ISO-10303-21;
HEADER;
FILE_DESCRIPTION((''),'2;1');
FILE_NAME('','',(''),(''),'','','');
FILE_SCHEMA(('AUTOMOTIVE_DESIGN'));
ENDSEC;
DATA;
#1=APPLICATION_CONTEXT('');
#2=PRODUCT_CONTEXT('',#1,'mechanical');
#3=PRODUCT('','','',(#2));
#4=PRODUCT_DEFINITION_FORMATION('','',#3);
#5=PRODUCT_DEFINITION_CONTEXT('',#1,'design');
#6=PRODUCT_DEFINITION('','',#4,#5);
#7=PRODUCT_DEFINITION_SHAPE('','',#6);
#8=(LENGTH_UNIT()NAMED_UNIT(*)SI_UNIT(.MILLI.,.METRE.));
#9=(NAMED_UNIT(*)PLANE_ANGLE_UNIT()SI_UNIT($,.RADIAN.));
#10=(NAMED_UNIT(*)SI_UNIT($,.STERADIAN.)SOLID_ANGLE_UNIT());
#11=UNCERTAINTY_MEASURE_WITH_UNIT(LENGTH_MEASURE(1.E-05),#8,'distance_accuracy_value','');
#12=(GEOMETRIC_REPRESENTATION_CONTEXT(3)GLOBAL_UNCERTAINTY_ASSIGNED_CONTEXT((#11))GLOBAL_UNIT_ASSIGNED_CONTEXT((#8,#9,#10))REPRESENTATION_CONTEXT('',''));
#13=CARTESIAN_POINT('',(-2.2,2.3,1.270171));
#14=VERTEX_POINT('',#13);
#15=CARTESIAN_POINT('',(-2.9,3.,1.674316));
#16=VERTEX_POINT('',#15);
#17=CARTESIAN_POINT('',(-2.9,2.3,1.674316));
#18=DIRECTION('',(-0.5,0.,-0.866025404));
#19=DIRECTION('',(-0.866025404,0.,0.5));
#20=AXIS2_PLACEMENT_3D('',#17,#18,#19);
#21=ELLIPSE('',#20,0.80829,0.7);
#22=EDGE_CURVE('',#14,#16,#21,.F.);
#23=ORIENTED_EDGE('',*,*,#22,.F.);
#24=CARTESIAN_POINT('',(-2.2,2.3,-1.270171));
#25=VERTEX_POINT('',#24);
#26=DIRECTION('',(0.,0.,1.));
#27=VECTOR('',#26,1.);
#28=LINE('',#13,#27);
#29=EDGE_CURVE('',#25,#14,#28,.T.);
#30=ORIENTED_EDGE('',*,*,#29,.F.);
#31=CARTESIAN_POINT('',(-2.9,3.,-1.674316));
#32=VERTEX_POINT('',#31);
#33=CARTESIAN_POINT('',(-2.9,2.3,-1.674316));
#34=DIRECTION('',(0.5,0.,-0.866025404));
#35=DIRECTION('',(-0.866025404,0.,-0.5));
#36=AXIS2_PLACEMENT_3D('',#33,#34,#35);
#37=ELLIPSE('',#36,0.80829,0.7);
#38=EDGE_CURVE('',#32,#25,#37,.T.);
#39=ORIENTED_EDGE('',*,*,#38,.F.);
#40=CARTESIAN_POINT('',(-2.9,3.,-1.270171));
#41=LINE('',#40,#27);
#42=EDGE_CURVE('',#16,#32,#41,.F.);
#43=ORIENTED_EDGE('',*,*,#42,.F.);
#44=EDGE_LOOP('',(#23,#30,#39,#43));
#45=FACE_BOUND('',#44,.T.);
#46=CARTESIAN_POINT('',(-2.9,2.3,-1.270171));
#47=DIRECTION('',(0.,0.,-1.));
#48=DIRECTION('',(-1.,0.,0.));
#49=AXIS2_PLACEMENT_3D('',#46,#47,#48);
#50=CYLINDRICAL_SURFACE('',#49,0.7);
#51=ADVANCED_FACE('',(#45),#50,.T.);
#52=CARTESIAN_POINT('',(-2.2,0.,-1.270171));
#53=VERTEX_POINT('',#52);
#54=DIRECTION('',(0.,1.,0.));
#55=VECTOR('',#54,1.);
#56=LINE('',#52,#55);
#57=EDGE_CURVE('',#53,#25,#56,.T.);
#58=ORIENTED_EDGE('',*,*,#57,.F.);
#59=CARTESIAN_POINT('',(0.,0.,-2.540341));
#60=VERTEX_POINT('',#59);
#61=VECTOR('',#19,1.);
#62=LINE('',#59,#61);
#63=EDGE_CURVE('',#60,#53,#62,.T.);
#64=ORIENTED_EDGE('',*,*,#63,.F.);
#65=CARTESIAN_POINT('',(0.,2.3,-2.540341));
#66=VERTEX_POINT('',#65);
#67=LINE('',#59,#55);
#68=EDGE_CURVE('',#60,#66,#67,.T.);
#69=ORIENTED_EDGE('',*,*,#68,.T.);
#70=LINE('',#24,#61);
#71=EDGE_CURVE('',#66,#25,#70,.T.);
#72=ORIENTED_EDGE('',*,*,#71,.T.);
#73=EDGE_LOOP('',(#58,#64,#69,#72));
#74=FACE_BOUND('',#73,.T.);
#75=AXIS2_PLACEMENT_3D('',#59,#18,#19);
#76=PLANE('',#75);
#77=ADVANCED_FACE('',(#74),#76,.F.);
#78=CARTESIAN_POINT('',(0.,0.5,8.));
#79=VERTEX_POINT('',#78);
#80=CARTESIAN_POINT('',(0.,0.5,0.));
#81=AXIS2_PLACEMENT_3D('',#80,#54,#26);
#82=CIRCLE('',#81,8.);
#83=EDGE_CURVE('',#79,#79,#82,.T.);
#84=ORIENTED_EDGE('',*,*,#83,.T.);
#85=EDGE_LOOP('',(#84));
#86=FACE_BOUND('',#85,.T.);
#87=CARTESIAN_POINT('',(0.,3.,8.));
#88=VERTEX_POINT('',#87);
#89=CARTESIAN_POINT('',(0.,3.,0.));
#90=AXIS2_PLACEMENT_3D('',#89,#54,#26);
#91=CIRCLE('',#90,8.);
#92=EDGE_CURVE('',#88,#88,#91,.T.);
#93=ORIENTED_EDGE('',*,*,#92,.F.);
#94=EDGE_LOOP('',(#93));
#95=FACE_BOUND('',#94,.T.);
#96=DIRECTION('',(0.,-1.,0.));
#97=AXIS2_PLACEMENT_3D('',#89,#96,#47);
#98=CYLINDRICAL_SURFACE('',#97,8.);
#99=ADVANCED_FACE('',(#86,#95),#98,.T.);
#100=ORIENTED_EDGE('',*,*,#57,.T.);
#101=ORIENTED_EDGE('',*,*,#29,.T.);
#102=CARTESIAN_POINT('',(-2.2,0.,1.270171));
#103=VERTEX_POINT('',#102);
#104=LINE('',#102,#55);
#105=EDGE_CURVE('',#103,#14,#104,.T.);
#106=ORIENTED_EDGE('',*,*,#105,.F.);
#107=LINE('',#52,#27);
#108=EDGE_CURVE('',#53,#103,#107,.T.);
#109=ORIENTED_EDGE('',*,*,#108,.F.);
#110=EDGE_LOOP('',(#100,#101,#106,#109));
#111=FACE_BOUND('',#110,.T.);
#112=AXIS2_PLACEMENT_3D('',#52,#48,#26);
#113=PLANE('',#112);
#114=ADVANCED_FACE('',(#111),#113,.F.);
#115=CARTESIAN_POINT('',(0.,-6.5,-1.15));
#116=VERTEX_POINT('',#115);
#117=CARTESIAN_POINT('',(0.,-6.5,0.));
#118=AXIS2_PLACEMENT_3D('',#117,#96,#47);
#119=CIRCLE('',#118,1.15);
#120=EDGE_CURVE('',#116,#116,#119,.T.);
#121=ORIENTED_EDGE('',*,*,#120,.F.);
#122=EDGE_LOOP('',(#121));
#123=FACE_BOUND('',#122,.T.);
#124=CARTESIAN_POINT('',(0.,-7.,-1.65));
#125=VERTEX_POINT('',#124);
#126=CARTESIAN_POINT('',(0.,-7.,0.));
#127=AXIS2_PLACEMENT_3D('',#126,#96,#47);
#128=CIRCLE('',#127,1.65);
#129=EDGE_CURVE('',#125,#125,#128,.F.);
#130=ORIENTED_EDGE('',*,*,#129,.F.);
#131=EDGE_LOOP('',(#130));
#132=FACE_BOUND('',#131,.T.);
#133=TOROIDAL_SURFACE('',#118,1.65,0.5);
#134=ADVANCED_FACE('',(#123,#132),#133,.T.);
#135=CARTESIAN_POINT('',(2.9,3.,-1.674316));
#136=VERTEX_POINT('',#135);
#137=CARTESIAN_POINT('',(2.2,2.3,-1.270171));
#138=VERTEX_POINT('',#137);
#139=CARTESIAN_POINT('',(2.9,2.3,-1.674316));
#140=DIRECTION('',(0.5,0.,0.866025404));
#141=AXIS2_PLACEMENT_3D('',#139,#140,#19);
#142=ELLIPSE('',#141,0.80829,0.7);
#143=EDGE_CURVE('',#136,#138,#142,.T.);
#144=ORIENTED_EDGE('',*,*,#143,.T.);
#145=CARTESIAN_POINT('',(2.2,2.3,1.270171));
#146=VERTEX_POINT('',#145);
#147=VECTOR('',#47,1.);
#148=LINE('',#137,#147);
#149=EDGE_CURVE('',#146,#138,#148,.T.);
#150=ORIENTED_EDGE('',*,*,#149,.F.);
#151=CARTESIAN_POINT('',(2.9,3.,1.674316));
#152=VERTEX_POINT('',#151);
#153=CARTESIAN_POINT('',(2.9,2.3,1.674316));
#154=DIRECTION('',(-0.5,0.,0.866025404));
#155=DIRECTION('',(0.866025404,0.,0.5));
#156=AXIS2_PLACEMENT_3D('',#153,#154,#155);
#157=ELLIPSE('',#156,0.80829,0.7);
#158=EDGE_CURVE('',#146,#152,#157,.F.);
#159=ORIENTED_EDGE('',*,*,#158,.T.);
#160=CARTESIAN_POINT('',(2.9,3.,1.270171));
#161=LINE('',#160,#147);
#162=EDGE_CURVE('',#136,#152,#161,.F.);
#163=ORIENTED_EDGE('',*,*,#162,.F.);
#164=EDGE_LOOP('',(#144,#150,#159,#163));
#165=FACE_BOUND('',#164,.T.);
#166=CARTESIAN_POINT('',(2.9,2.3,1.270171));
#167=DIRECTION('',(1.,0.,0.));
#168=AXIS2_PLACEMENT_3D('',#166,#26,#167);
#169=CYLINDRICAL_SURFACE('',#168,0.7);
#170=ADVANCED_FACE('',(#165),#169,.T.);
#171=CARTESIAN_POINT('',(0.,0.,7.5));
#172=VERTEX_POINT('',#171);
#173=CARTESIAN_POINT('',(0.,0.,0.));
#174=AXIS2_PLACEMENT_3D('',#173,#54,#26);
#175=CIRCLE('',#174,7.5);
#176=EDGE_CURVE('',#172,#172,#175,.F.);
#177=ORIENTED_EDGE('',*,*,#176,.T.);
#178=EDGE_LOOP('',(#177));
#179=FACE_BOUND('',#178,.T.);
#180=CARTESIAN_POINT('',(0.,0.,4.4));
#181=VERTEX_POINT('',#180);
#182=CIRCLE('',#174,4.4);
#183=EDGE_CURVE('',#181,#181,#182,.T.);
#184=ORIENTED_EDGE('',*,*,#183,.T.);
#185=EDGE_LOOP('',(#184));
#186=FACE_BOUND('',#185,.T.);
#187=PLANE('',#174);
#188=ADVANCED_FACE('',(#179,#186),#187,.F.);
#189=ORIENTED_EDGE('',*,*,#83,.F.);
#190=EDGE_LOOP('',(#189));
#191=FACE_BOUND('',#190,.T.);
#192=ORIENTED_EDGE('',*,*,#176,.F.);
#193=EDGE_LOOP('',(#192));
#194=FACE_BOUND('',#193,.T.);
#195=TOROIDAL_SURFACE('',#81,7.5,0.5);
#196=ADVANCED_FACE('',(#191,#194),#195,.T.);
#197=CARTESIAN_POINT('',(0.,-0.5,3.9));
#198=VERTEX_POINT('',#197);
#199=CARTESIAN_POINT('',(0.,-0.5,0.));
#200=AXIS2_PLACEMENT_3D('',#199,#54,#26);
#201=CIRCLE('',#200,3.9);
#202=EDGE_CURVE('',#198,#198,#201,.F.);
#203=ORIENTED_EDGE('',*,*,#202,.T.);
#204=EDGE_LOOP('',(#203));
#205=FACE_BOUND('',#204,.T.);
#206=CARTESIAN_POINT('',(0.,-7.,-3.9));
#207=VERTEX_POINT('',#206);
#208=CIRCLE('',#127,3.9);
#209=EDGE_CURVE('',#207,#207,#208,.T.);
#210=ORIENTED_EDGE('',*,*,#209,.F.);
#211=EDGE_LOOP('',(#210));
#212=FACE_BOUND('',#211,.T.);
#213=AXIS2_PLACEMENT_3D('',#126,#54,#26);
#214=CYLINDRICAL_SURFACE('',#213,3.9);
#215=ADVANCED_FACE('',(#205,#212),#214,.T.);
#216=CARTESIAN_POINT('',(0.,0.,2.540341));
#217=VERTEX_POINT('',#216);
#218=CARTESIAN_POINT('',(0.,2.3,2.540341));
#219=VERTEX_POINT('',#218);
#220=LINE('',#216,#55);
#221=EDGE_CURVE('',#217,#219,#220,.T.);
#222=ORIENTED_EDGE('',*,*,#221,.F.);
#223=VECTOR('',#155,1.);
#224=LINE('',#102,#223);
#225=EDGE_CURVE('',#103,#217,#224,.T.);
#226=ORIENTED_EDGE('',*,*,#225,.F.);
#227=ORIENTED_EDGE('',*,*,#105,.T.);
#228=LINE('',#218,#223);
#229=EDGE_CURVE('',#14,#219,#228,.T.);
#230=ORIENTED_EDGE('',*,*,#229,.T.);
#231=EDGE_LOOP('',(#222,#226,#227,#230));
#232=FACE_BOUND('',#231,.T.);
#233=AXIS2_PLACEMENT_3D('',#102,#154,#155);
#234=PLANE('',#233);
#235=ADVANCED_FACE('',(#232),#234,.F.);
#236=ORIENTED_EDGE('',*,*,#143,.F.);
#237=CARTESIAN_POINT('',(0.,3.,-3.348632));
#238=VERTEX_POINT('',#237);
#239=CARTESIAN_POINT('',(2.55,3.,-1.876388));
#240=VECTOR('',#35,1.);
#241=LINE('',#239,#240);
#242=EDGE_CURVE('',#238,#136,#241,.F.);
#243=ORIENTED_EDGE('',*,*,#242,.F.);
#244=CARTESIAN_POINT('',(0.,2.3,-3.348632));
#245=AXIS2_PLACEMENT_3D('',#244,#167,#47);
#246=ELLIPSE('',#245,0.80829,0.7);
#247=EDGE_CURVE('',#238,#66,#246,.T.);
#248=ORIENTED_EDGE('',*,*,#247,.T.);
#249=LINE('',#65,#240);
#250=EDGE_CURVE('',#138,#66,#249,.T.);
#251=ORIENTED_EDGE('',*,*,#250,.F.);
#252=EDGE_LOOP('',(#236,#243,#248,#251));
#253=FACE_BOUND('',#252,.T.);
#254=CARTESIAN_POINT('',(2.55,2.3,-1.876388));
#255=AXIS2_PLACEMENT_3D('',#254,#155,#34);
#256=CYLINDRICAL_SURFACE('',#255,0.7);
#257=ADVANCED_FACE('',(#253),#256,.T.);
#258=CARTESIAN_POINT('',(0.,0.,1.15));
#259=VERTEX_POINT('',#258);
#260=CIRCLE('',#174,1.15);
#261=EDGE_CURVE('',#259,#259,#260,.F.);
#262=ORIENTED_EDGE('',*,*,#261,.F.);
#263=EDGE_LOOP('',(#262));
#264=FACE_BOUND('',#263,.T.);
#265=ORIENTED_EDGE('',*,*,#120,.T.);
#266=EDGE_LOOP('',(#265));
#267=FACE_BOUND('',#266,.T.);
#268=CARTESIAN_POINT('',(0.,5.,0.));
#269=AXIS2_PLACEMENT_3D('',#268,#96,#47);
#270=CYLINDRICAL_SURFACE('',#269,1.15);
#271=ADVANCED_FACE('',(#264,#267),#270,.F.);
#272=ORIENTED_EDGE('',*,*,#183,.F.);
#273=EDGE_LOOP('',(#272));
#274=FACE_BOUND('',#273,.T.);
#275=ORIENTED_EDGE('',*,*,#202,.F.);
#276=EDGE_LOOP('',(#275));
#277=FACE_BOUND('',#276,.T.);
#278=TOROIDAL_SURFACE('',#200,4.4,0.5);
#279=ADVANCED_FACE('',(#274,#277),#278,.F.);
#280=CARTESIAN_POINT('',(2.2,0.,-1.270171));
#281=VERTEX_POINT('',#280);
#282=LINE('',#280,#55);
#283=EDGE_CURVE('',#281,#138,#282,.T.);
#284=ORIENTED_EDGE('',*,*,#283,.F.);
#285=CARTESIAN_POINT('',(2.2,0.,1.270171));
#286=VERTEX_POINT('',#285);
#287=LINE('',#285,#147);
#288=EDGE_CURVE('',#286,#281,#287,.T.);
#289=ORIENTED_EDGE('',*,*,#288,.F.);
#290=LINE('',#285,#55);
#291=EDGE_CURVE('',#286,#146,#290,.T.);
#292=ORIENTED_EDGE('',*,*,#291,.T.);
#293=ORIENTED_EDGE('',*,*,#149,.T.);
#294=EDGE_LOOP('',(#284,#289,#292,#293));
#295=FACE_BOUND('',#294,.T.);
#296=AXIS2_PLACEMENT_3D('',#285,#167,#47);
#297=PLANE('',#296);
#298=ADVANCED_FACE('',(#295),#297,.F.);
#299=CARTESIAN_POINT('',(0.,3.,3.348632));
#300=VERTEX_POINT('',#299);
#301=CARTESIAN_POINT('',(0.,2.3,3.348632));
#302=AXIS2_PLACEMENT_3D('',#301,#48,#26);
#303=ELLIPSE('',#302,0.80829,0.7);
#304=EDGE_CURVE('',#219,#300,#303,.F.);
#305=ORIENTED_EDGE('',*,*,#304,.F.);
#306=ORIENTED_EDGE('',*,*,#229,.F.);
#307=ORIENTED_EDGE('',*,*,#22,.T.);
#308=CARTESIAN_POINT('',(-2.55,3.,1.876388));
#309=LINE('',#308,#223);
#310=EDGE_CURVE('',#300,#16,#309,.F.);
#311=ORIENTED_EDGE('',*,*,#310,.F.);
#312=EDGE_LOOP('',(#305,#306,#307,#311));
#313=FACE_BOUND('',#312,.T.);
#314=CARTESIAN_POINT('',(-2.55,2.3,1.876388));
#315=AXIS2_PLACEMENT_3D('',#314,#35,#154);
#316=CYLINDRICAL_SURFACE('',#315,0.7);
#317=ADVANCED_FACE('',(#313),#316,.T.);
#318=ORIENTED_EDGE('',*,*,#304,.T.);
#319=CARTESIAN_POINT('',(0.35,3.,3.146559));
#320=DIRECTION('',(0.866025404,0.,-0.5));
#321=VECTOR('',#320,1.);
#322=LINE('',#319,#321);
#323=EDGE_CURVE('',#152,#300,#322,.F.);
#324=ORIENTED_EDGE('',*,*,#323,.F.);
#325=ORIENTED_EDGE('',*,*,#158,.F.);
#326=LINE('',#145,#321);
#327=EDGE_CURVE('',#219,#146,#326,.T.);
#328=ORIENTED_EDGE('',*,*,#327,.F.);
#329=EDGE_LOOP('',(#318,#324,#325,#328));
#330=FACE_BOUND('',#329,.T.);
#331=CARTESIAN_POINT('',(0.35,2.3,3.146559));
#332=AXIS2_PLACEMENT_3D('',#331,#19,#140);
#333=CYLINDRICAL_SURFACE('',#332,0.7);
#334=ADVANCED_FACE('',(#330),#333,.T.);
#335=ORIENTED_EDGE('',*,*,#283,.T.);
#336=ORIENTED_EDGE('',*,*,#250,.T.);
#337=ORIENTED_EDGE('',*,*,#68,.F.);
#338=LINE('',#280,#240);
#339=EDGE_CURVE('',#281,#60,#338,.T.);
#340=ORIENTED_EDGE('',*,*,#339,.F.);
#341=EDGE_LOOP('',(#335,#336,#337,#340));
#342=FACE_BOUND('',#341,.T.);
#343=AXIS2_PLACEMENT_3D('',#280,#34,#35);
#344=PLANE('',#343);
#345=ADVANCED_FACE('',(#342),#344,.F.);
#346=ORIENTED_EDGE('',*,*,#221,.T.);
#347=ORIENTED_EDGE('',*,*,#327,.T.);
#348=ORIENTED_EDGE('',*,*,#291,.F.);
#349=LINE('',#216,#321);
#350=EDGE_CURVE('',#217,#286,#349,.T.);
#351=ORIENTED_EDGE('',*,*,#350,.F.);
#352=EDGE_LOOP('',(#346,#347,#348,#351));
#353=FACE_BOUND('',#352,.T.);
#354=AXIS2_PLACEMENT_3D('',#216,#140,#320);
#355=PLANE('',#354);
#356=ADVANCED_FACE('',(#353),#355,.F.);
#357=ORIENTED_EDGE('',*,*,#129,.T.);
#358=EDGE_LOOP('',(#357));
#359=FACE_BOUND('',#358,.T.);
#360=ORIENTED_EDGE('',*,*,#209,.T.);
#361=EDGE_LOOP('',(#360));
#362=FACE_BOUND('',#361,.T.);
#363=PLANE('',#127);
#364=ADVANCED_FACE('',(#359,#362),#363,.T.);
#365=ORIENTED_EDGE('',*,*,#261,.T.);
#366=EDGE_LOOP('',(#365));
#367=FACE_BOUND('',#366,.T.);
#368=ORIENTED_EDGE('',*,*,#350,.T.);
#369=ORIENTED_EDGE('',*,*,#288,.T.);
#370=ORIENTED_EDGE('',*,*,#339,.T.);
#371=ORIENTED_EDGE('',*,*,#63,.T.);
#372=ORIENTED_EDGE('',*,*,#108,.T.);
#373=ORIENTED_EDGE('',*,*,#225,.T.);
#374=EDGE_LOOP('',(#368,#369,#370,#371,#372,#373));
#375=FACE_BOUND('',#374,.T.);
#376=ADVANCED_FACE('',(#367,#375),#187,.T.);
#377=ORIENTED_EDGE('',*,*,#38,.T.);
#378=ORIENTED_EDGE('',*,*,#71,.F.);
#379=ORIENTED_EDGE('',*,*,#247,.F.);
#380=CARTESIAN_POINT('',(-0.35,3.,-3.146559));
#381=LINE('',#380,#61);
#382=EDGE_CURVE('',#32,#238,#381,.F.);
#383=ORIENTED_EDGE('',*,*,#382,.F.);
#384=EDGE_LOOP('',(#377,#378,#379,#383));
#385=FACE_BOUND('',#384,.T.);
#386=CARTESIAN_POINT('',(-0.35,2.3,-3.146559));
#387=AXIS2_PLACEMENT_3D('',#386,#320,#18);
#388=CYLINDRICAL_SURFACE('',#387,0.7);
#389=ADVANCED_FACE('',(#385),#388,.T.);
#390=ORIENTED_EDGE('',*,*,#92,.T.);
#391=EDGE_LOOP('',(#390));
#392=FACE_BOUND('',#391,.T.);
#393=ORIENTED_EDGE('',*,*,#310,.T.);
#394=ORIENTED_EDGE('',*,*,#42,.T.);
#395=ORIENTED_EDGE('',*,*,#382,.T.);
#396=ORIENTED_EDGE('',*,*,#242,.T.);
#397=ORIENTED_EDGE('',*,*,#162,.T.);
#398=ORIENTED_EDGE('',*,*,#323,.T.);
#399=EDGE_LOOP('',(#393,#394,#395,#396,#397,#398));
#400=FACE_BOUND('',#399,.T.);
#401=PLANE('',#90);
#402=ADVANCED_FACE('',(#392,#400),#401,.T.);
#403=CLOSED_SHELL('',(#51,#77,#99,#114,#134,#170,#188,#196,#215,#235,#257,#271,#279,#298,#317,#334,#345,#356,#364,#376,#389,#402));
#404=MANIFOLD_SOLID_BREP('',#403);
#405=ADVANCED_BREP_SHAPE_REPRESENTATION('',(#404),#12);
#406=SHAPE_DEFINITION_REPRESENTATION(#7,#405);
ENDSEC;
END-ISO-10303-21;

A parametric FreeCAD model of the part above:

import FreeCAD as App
import Part
import Sketcher
Q = App.Units.Quantity


def edges_at(feature, points):
    """Names of the edges that pass closest to the given points."""
    edges = feature.Shape.Edges
    near = lambda p: min(range(len(edges)), key=lambda i: edges[i].distToShape(Part.Vertex(*p))[0])
    return sorted({f"Edge{near(p) + 1}" for p in points})


def add_polygon(sketch, points):
    """Adds a closed chain of lines whose ends are joined by coincident constraints."""
    first, n = sketch.GeometryCount, len(points)
    for a, b in zip(points, points[1:] + points[:1]):
        sketch.addGeometry(Part.LineSegment(App.Vector(*a, 0), App.Vector(*b, 0)), False)
    for i in range(n):
        sketch.addConstraint(Sketcher.Constraint("Coincident", first + i, 2, first + (i + 1) % n, 1))

doc = App.newDocument("Part")
body = doc.addObject("PartDesign::Body", "Body")

# Sketch on XZ plane
sketch1 = doc.addObject("Sketcher::SketchObject", "Sketch")
body.addObject(sketch1)
sketch1.AttachmentSupport = (doc.XZ_Plane, [""])
sketch1.MapMode = "FlatFace"
sketch1.addGeometry(Part.Circle(App.Vector(0, 0, 0), App.Vector(0, 0, 1), 8), False)
sketch1.addConstraint([
    Sketcher.Constraint("Coincident", 0, 3, -1, 1),
    Sketcher.Constraint("Diameter", 0, Q("16 mm")),
])
pad1 = doc.addObject("PartDesign::Pad", "Pad")
body.addObject(pad1)
pad1.Profile = sketch1
pad1.Length = 3
pad1.Reversed = True

# Sketch on XZ plane
sketch2 = doc.addObject("Sketcher::SketchObject", "Sketch001")
body.addObject(sketch2)
sketch2.AttachmentSupport = (doc.XZ_Plane, [""])
sketch2.MapMode = "FlatFace"
sketch2.addGeometry(Part.Circle(App.Vector(0, 0, 0), App.Vector(0, 0, 1), 3.9), False)
sketch2.addConstraint([
    Sketcher.Constraint("Coincident", 0, 3, -1, 1),
    Sketcher.Constraint("Diameter", 0, Q("7.8 mm")),
])
pad2 = doc.addObject("PartDesign::Pad", "Pad001")
body.addObject(pad2)
pad2.Profile = sketch2
pad2.Length = 7

# Sketch on XZ plane
sketch3 = doc.addObject("Sketcher::SketchObject", "Sketch002")
body.addObject(sketch3)
sketch3.AttachmentSupport = (doc.XZ_Plane, [""])
sketch3.MapMode = "FlatFace"
sketch3.AttachmentOffset = App.Placement(App.Vector(0, 0, 7), App.Rotation())
sketch3.addGeometry(Part.Circle(App.Vector(0, 0, 0), App.Vector(0, 0, 1), 1.1), False)
sketch3.addConstraint([
    Sketcher.Constraint("Coincident", 0, 3, -1, 1),
    Sketcher.Constraint("Diameter", 0, Q("2.3 mm")),
])
pocket1 = doc.addObject("PartDesign::Pocket", "Pocket")
body.addObject(pocket1)
pocket1.Profile = sketch3
pocket1.Length = 12

# Sketch on XZ plane
sketch4 = doc.addObject("Sketcher::SketchObject", "Sketch003")
body.addObject(sketch4)
sketch4.AttachmentSupport = (doc.XZ_Plane, [""])
sketch4.MapMode = "FlatFace"
sketch4.AttachmentOffset = App.Placement(App.Vector(0, 0, -3), App.Rotation())
add_polygon(sketch4, [(0, -2.5), (-2.2, -1.3), (-2.2, 1.3), (0, 2.5), (2.2, 1.3), (2.2, -1.3)])  # lines 0-5
sketch4.addConstraint([
    Sketcher.Constraint("Vertical", 1),
    Sketcher.Constraint("Vertical", 4),
    Sketcher.Constraint("Symmetric", 0, 2, 3, 2, -1, 1),
    Sketcher.Constraint("Symmetric", 2, 2, 5, 2, -1, 1),
    Sketcher.Constraint("PointOnObject", 2, 2, -2),
    Sketcher.Constraint("Parallel", 2, 5),
    Sketcher.Constraint("Horizontal", 1, 2, 3, 2),
    Sketcher.Constraint("Angle", 0, Q("150 deg")),
    Sketcher.Constraint("DistanceX", 0, 2, -1, 1, Q("2.2 mm")),
    Sketcher.Constraint("DistanceY", 1, 1, 1, 2, Q("2.540341 mm")),
])
pocket2 = doc.addObject("PartDesign::Pocket", "Pocket001")
body.addObject(pocket2)
pocket2.Profile = sketch4
pocket2.Length = 3
pocket2.Reversed = True
doc.recompute()

fillet = doc.addObject("PartDesign::Fillet", "Fillet")
body.addObject(fillet)
fillet.Base = (pocket2, edges_at(pocket2, [
    (1.1, 3, -1.905),
    (-1.1, 3, -1.905),
    (-2.2, 3, 0),
    (-1.1, 3, 1.905),
    (1.1, 3, 1.905),
    (2.2, 3, 0),
]))
fillet.Radius = 0.7
doc.recompute()

fillet2 = doc.addObject("PartDesign::Fillet", "Fillet001")
body.addObject(fillet2)
fillet2.Base = (fillet, edges_at(fillet, [(-1.15, -7, 0)]))
fillet2.Radius = 0.5
doc.recompute()

fillet3 = doc.addObject("PartDesign::Fillet", "Fillet002")
body.addObject(fillet3)
fillet3.Base = (fillet2, edges_at(fillet2, [(-8, 0, 0), (-3.9, 0, 0)]))
fillet3.Radius = 0.5

doc.recompute()
